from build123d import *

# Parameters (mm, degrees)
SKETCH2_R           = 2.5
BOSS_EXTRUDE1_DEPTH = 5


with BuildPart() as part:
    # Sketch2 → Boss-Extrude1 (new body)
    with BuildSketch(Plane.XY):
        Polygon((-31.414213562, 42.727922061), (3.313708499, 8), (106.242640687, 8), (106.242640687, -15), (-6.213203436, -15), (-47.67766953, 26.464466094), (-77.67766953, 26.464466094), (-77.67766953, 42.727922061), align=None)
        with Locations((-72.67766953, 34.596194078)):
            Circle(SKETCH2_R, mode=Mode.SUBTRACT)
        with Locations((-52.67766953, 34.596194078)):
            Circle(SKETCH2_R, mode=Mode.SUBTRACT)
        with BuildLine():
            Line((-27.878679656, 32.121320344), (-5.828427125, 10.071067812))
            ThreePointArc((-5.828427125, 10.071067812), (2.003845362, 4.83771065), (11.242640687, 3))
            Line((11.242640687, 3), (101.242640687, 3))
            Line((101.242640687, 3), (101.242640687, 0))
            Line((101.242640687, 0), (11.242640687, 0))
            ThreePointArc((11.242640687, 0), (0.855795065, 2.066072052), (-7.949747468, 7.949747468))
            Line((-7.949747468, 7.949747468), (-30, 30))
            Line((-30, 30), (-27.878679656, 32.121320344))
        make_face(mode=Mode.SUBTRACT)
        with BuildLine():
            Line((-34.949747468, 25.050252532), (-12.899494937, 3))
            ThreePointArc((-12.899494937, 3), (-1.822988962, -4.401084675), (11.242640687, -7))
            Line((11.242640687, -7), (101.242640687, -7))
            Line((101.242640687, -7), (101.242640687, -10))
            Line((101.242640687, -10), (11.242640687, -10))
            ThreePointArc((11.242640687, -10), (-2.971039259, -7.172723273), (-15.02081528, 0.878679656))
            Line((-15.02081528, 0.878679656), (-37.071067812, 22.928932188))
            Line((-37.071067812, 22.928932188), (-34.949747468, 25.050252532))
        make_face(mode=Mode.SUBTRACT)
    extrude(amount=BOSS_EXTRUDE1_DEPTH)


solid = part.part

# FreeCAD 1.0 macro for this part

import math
import FreeCAD as App
import Part
import Sketcher

V = App.Vector
Q = App.Units.Quantity

doc = App.newDocument("Part")
body = doc.addObject("PartDesign::Body", "Body")

# Sketch on XY plane
sketch1 = body.newObject("Sketcher::SketchObject", "Sketch")
sketch1.AttachmentSupport = (doc.getObject("XY_Plane"), [""])
sketch1.MapMode = "FlatFace"
sketch1.addGeometry([
    Part.LineSegment(V(3.3, 8, 0), V(-31.4, 42.7, 0)),  # 0
    Part.LineSegment(V(-31.4, 42.7, 0), V(-77.7, 42.7, 0)),  # 1
    Part.LineSegment(V(-77.7, 42.7, 0), V(-77.7, 26.5, 0)),  # 2
    Part.LineSegment(V(-77.7, 26.5, 0), V(-47.7, 26.5, 0)),  # 3
    Part.LineSegment(V(-47.7, 26.5, 0), V(-6.2, -15, 0)),  # 4
    Part.LineSegment(V(-6.2, -15, 0), V(106.2, -15, 0)),  # 5
    Part.LineSegment(V(106.2, -15, 0), V(106.2, 8, 0)),  # 6
    Part.LineSegment(V(106.2, 8, 0), V(3.3, 8, 0)),  # 7
    Part.LineSegment(V(-34.9, 25.1, 0), V(-12.9, 3, 0)),  # 8
    Part.ArcOfCircle(Part.Circle(V(11.2, 27.1, 0), V(0, 0, 1), 34.1), math.radians(-135), math.radians(-90)),  # 9
    Part.LineSegment(V(11.2, -7, 0), V(101.2, -7, 0)),  # 10
    Part.LineSegment(V(101.2, -7, 0), V(101.2, -10, 0)),  # 11
    Part.LineSegment(V(101.2, -10, 0), V(11.2, -10, 0)),  # 12
    Part.ArcOfCircle(Part.Circle(V(11.2, 27.1, 0), V(0, 0, 1), 37.1), math.radians(-135), math.radians(-90)),  # 13
    Part.LineSegment(V(-15, 0.9, 0), V(-37.1, 22.9, 0)),  # 14
    Part.LineSegment(V(-37.1, 22.9, 0), V(-34.9, 25.1, 0)),  # 15
    Part.LineSegment(V(-27.9, 32.1, 0), V(-5.8, 10.1, 0)),  # 16
    Part.ArcOfCircle(Part.Circle(V(11.2, 27.1, 0), V(0, 0, 1), 24.1), math.radians(-135), math.radians(-90)),  # 17
    Part.LineSegment(V(11.2, 3, 0), V(101.2, 3, 0)),  # 18
    Part.LineSegment(V(101.2, 3, 0), V(101.2, 0, 0)),  # 19
    Part.LineSegment(V(101.2, 0, 0), V(11.2, 0, 0)),  # 20
    Part.ArcOfCircle(Part.Circle(V(11.2, 27.1, 0), V(0, 0, 1), 27.1), math.radians(-135), math.radians(-90)),  # 21
    Part.LineSegment(V(-7.9, 7.9, 0), V(-30, 30, 0)),  # 22
    Part.LineSegment(V(-30, 30, 0), V(-27.9, 32.1, 0)),  # 23
    Part.Circle(V(-52.7, 34.6, 0), V(0, 0, 1), 2.5),  # 24
    Part.Circle(V(-72.7, 34.6, 0), V(0, 0, 1), 2.5),  # 25
], False)
sketch1.addConstraint([
    Sketcher.Constraint("Coincident", 0, 2, 1, 1),
    Sketcher.Constraint("Coincident", 1, 2, 2, 1),
    Sketcher.Constraint("Coincident", 2, 2, 3, 1),
    Sketcher.Constraint("Coincident", 3, 2, 4, 1),
    Sketcher.Constraint("Coincident", 4, 2, 5, 1),
    Sketcher.Constraint("Coincident", 5, 2, 6, 1),
    Sketcher.Constraint("Coincident", 6, 2, 7, 1),
    Sketcher.Constraint("Coincident", 7, 2, 0, 1),
    Sketcher.Constraint("Tangent", 8, 2, 9, 1),
    Sketcher.Constraint("Tangent", 9, 2, 10, 1),
    Sketcher.Constraint("Coincident", 10, 2, 11, 1),
    Sketcher.Constraint("Coincident", 11, 2, 12, 1),
    Sketcher.Constraint("Tangent", 12, 2, 13, 2),
    Sketcher.Constraint("Tangent", 13, 1, 14, 1),
    Sketcher.Constraint("Coincident", 14, 2, 15, 1),
    Sketcher.Constraint("Coincident", 15, 2, 8, 1),
    Sketcher.Constraint("Tangent", 16, 2, 17, 1),
    Sketcher.Constraint("Tangent", 17, 2, 18, 1),
    Sketcher.Constraint("Coincident", 18, 2, 19, 1),
    Sketcher.Constraint("Coincident", 19, 2, 20, 1),
    Sketcher.Constraint("Tangent", 20, 2, 21, 2),
    Sketcher.Constraint("Tangent", 21, 1, 22, 1),
    Sketcher.Constraint("Coincident", 22, 2, 23, 1),
    Sketcher.Constraint("Coincident", 23, 2, 16, 1),
    Sketcher.Constraint("Horizontal", 1),
    Sketcher.Constraint("Vertical", 2),
    Sketcher.Constraint("Horizontal", 3),
    Sketcher.Constraint("Horizontal", 5),
    Sketcher.Constraint("Vertical", 6),
    Sketcher.Constraint("Horizontal", 7),
    Sketcher.Constraint("Horizontal", 10),
    Sketcher.Constraint("Vertical", 11),
    Sketcher.Constraint("Horizontal", 12),
    Sketcher.Constraint("Horizontal", 18),
    Sketcher.Constraint("Vertical", 19),
    Sketcher.Constraint("Horizontal", 20),
    Sketcher.Constraint("Coincident", 13, 3, 9, 3),
    Sketcher.Constraint("Coincident", 17, 3, 9, 3),
    Sketcher.Constraint("Coincident", 21, 3, 9, 3),
    Sketcher.Constraint("Equal", 24, 25),
    Sketcher.Constraint("PointOnObject", 19, 2, -1),
    Sketcher.Constraint("Parallel", 0, 4),
    Sketcher.Constraint("Parallel", 4, 8),
    Sketcher.Constraint("Parallel", 8, 14),
    Sketcher.Constraint("Perpendicular", 14, 15),
    Sketcher.Constraint("Perpendicular", 15, 16),
    Sketcher.Constraint("Parallel", 16, 22),
    Sketcher.Constraint("Perpendicular", 22, 23),
    Sketcher.Constraint("Horizontal", 24, 3, 25, 3),
    Sketcher.Constraint("Horizontal", 8, 2, 17, 2),
    Sketcher.Constraint("Vertical", 11, 2, 18, 2),
    Sketcher.Constraint("Equal", 11, 19),
    Sketcher.Constraint("Equal", 14, 16),
    Sketcher.Constraint("Diameter", 24, Q("5 mm")),
    Sketcher.Constraint("DistanceX", 3, 1, 3, 2, Q("30 mm")),
    Sketcher.Constraint("DistanceX", 10, 1, 10, 2, Q("90 mm")),
    Sketcher.Constraint("DistanceY", 6, 1, 6, 2, Q("23 mm")),
    Sketcher.Constraint("DistanceY", 11, 2, 11, 1, Q("3 mm")),
    Sketcher.Constraint("Angle", 0, Q("135 deg")),
    Sketcher.Constraint("DistanceY", 4, 2, -1, 1, Q("15 mm")),
    Sketcher.Constraint("DistanceY", 9, 2, -1, 1, Q("7 mm")),
    Sketcher.Constraint("DistanceX", 22, 2, -1, 1, Q("30 mm")),
    Sketcher.Constraint("DistanceY", -1, 1, 22, 2, Q("30 mm")),
    Sketcher.Constraint("DistanceX", 25, 3, 24, 3, Q("20 mm")),
    Sketcher.Constraint("DistanceX", 1, 2, 25, 3, Q("5 mm")),
    Sketcher.Constraint("DistanceX", 13, 3, 5, 2, Q("95 mm")),
    Sketcher.Constraint("Distance", 0, Q("49.112698 mm")),
    Sketcher.Constraint("DistanceX", 3, 2, 14, 2, Q("10.606602 mm")),
    Sketcher.Constraint("Distance", 4, Q("58.63961 mm")),
    Sketcher.Constraint("DistanceX", 1, 2, 1, 1, Q("46.263456 mm")),
    Sketcher.Constraint("DistanceY", 13, 3, 24, 3, Q("7.454058 mm")),
])
pad1 = body.newObject("PartDesign::Pad", "Pad")
pad1.Profile = sketch1
pad1.Length = 5

doc.recompute()
